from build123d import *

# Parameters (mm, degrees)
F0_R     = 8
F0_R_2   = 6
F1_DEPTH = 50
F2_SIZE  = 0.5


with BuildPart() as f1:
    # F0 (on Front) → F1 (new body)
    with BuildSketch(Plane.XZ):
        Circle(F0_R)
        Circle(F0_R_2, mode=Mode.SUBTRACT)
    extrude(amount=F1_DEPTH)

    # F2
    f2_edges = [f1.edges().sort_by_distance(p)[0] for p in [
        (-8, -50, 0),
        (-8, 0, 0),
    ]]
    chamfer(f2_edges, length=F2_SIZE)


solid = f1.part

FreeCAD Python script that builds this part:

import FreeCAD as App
import Part
import Sketcher

V = App.Vector
Q = App.Units.Quantity


def edges_at(feature, points):
    """Names of the edges that pass closest to the given points."""
    edges = feature.Shape.Edges
    near = lambda p: min(range(len(edges)), key=lambda i: edges[i].distToShape(Part.Vertex(*p))[0])
    return sorted({f"Edge{near(p) + 1}" for p in points})

doc = App.newDocument("Part")
body = doc.addObject("PartDesign::Body", "Body")

sketch1 = body.newObject("Sketcher::SketchObject", "Sketch")
sketch1.AttachmentSupport = (doc.getObject("XZ_Plane"), [""])
sketch1.MapMode = "FlatFace"
sketch1.addGeometry([
    Part.Circle(V(0, 0, 0), V(0, 0, 1), 8),
    Part.Circle(V(0, 0, 0), V(0, 0, 1), 6),
], False)
sketch1.addConstraint([
    Sketcher.Constraint("Coincident", 0, 3, -1, 1),
    Sketcher.Constraint("Coincident", 1, 3, -1, 1),
    Sketcher.Constraint("Diameter", 0, Q("16 mm")),
    Sketcher.Constraint("Diameter", 1, Q("12 mm")),
])
pad1 = body.newObject("PartDesign::Pad", "Pad")
pad1.Profile = sketch1
pad1.Length = 50
doc.recompute()

chamfer = body.newObject("PartDesign::Chamfer", "Chamfer")
chamfer.Base = (pad1, edges_at(pad1, [(-8, -50, 0), (-8, 0, 0)]))
chamfer.Size = 0.5

doc.recompute()
